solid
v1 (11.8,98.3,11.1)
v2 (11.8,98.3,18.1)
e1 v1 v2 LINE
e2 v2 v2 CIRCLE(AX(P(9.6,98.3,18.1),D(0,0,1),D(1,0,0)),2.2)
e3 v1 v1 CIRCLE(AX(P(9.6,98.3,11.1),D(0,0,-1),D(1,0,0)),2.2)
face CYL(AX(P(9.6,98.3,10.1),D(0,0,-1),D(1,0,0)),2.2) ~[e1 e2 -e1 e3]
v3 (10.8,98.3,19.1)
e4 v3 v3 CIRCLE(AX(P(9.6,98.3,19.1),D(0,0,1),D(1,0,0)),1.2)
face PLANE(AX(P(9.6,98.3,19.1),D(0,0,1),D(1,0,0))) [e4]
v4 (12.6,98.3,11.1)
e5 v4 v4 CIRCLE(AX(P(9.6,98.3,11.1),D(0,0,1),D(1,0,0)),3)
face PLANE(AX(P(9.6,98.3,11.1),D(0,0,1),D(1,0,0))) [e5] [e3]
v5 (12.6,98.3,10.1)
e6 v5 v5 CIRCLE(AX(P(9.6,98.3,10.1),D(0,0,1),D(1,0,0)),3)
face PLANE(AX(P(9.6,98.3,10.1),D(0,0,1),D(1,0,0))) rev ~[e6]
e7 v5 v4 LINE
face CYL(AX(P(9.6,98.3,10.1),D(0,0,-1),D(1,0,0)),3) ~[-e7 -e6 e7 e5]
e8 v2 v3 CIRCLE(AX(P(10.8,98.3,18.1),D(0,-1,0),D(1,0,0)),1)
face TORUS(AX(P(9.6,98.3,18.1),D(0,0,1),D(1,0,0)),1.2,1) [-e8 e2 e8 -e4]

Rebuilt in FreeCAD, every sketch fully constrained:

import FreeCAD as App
import Part
import Sketcher

V = App.Vector
Q = App.Units.Quantity


def edges_at(feature, points):
    """Names of the edges that pass closest to the given points."""
    edges = feature.Shape.Edges
    near = lambda p: min(range(len(edges)), key=lambda i: edges[i].distToShape(Part.Vertex(*p))[0])
    return sorted({f"Edge{near(p) + 1}" for p in points})

doc = App.newDocument("Part")
body = doc.addObject("PartDesign::Body", "Body")

# Sketch on XY plane
sketch1 = body.newObject("Sketcher::SketchObject", "Sketch")
sketch1.AttachmentSupport = (doc.getObject("XY_Plane"), [""])
sketch1.MapMode = "FlatFace"
sketch1.AttachmentOffset = App.Placement(V(0, 0, 10.1), App.Rotation())
sketch1.addGeometry(Part.Circle(V(9.6, 98.3, 0), V(0, 0, 1), 2.2), False)
sketch1.addConstraint(Sketcher.Constraint("Diameter", 0, Q("4.4 mm")))
sketch1.addConstraint(Sketcher.Constraint("DistanceX", -1, 1, 0, 3, Q("9.6 mm")))
sketch1.addConstraint(Sketcher.Constraint("DistanceY", -1, 1, 0, 3, Q("98.3 mm")))
pad1 = body.newObject("PartDesign::Pad", "Pad")
pad1.Profile = sketch1
pad1.Length = 9
body2 = doc.addObject("PartDesign::Body", "Body001")

# Sketch on XY plane
sketch2 = body2.newObject("Sketcher::SketchObject", "Sketch001")
sketch2.AttachmentSupport = (doc.getObject("XY_Plane001"), [""])
sketch2.MapMode = "FlatFace"
sketch2.AttachmentOffset = App.Placement(V(0, 0, 10.1), App.Rotation())
sketch2.addGeometry(Part.Circle(V(9.6, 98.3, 0), V(0, 0, 1), 3), False)
sketch2.addConstraint(Sketcher.Constraint("Diameter", 0, Q("6 mm")))
sketch2.addConstraint(Sketcher.Constraint("DistanceX", -1, 1, 0, 3, Q("9.6 mm")))
sketch2.addConstraint(Sketcher.Constraint("DistanceY", -1, 1, 0, 3, Q("98.3 mm")))
pad2 = body2.newObject("PartDesign::Pad", "Pad001")
pad2.Profile = sketch2
pad2.Length = 1
doc.recompute()

boolean = body2.newObject("PartDesign::Boolean", "Boolean")
boolean.Type = "Fuse"
boolean.addObjects([body])
doc.recompute()

fillet = body2.newObject("PartDesign::Fillet", "Fillet")
fillet.Base = (boolean, edges_at(boolean, [(7.4, 98.3, 19.1)]))
fillet.Radius = 1

doc.recompute()
